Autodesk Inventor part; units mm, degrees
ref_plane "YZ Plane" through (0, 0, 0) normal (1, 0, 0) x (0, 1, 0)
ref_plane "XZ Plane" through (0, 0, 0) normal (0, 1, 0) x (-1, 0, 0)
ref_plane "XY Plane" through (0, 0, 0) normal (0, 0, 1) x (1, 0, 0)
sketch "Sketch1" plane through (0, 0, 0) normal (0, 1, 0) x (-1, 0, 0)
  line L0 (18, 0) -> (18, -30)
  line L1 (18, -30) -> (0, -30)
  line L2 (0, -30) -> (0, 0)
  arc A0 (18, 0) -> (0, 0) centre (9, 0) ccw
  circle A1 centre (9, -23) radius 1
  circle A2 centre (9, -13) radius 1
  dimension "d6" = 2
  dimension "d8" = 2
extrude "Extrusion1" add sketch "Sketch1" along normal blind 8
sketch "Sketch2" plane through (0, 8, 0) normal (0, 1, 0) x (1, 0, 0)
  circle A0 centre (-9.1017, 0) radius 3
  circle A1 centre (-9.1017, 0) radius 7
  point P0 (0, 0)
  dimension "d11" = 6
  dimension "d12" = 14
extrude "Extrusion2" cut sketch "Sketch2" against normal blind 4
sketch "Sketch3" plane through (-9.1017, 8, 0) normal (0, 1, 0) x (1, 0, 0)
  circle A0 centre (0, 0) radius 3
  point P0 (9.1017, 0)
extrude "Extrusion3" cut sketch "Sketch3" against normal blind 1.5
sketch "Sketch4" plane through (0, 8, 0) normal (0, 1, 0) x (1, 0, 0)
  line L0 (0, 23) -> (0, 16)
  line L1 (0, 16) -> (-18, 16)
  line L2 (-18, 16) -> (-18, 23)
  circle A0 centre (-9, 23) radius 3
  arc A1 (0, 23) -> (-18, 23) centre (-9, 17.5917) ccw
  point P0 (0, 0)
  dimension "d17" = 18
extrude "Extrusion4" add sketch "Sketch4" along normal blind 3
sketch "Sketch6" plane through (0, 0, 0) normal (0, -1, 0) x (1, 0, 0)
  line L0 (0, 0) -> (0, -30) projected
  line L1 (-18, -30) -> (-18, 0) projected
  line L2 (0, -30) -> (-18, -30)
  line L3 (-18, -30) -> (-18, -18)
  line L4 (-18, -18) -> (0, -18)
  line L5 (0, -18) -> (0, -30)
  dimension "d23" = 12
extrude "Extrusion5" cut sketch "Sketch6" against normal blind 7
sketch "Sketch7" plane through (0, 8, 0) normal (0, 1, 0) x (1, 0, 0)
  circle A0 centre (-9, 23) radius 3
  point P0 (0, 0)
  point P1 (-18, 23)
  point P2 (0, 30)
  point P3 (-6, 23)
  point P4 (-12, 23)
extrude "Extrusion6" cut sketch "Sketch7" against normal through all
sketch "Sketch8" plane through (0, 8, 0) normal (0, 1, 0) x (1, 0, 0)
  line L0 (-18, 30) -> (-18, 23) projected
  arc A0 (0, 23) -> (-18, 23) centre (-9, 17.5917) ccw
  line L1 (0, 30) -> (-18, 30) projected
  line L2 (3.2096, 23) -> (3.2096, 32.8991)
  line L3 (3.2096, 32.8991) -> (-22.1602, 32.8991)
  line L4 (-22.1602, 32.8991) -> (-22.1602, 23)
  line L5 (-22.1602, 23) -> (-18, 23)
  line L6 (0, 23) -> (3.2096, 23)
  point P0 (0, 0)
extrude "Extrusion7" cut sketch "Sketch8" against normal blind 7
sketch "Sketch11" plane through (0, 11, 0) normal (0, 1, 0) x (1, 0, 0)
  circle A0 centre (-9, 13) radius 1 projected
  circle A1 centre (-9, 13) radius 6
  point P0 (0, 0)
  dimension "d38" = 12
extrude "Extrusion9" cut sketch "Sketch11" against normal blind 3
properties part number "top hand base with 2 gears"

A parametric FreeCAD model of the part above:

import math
import FreeCAD as App
import Part
import Sketcher

doc = App.newDocument("Part")
body = doc.addObject("PartDesign::Body", "Body")

# Sketch on XZ plane
sketch1 = doc.addObject("Sketcher::SketchObject", "Sketch")
body.addObject(sketch1)
sketch1.AttachmentSupport = (doc.XZ_Plane, [""])
sketch1.MapMode = "FlatFace"
sketch1.addGeometry(Part.LineSegment(App.Vector(-18, -30, 0), App.Vector(-18, 0, 0)), False)
sketch1.addGeometry(Part.ArcOfCircle(Part.Circle(App.Vector(-9, 0, 0), App.Vector(0, 0, 1), 9), math.radians(0), math.radians(180)), False)
sketch1.addGeometry(Part.LineSegment(App.Vector(0, 0, 0), App.Vector(0, -30, 0)), False)
sketch1.addGeometry(Part.LineSegment(App.Vector(0, -30, 0), App.Vector(-18, -30, 0)), False)
sketch1.addGeometry(Part.Circle(App.Vector(-9, -23, 0), App.Vector(0, 0, 1), 1), False)
sketch1.addGeometry(Part.Circle(App.Vector(-9, -13, 0), App.Vector(0, 0, 1), 1), False)
sketch1.addConstraint(Sketcher.Constraint("Tangent", 0, 2, 1, 2))
sketch1.addConstraint(Sketcher.Constraint("Tangent", 1, 1, 2, 1))
sketch1.addConstraint(Sketcher.Constraint("Coincident", 2, 2, 3, 1))
sketch1.addConstraint(Sketcher.Constraint("Coincident", 3, 2, 0, 1))
sketch1.addConstraint(Sketcher.Constraint("Vertical", 0))
sketch1.addConstraint(Sketcher.Constraint("Vertical", 2))
sketch1.addConstraint(Sketcher.Constraint("Horizontal", 3))
sketch1.addConstraint(Sketcher.Constraint("Coincident", 1, 1, -1, 1))
sketch1.addConstraint(Sketcher.Constraint("Equal", 4, 5))
sketch1.addConstraint(Sketcher.Constraint("Vertical", 1, 3, 4, 3))
sketch1.addConstraint(Sketcher.Constraint("Vertical", 4, 3, 5, 3))
sketch1.addConstraint(Sketcher.Constraint("Diameter", 4, 2.0))
sketch1.addConstraint(Sketcher.Constraint("Radius", 1, 9.0))
sketch1.addConstraint(Sketcher.Constraint("DistanceY", 0, 1, 0, 2, 30.0))
sketch1.addConstraint(Sketcher.Constraint("DistanceY", 4, 3, -1, 1, 23.0))
sketch1.addConstraint(Sketcher.Constraint("DistanceY", 5, 3, -1, 1, 13.0))
pad1 = doc.addObject("PartDesign::Pad", "Pad")
body.addObject(pad1)
pad1.Profile = sketch1
pad1.Length = 8
pad1.Reversed = True

# Sketch on XZ plane
sketch2 = doc.addObject("Sketcher::SketchObject", "Sketch001")
body.addObject(sketch2)
sketch2.AttachmentSupport = (doc.XZ_Plane, [""])
sketch2.MapMode = "FlatFace"
sketch2.AttachmentOffset = App.Placement(App.Vector(0, 0, -8), App.Rotation())
sketch2.addGeometry(Part.Circle(App.Vector(-9.1, 0, 0), App.Vector(0, 0, 1), 7), False)
sketch2.addGeometry(Part.Circle(App.Vector(-9.1, 0, 0), App.Vector(0, 0, 1), 3), False)
sketch2.addConstraint(Sketcher.Constraint("Coincident", 1, 3, 0, 3))
sketch2.addConstraint(Sketcher.Constraint("PointOnObject", 0, 3, -1))
sketch2.addConstraint(Sketcher.Constraint("Diameter", 0, 14.0))
sketch2.addConstraint(Sketcher.Constraint("Diameter", 1, 6.0))
sketch2.addConstraint(Sketcher.Constraint("DistanceX", 0, 3, -1, 1, 9.1017))
pocket1 = doc.addObject("PartDesign::Pocket", "Pocket")
body.addObject(pocket1)
pocket1.Profile = sketch2
pocket1.Length = 4
pocket1.Reversed = True

# Sketch on XZ plane
sketch3 = doc.addObject("Sketcher::SketchObject", "Sketch002")
body.addObject(sketch3)
sketch3.AttachmentSupport = (doc.XZ_Plane, [""])
sketch3.MapMode = "FlatFace"
sketch3.AttachmentOffset = App.Placement(App.Vector(0, 0, -8), App.Rotation())
sketch3.addGeometry(Part.Circle(App.Vector(-9.1, 0, 0), App.Vector(0, 0, 1), 3), False)
sketch3.addConstraint(Sketcher.Constraint("PointOnObject", 0, 3, -1))
sketch3.addConstraint(Sketcher.Constraint("Diameter", 0, 6.0))
sketch3.addConstraint(Sketcher.Constraint("DistanceX", 0, 3, -1, 1, 9.1017))
pocket2 = doc.addObject("PartDesign::Pocket", "Pocket001")
body.addObject(pocket2)
pocket2.Profile = sketch3
pocket2.Length = 1.5
pocket2.Reversed = True

# Sketch on XZ plane
sketch4 = doc.addObject("Sketcher::SketchObject", "Sketch003")
body.addObject(sketch4)
sketch4.AttachmentSupport = (doc.XZ_Plane, [""])
sketch4.MapMode = "FlatFace"
sketch4.AttachmentOffset = App.Placement(App.Vector(0, 0, -8), App.Rotation())
sketch4.addGeometry(Part.LineSegment(App.Vector(0, -16, 0), App.Vector(0, -23, 0)), False)
sketch4.addGeometry(Part.ArcOfCircle(Part.Circle(App.Vector(-9, -17.6, 0), App.Vector(0, 0, 1), 10.5), math.radians(-149), math.radians(-31)), False)
sketch4.addGeometry(Part.LineSegment(App.Vector(-18, -23, 0), App.Vector(-18, -16, 0)), False)
sketch4.addGeometry(Part.LineSegment(App.Vector(-18, -16, 0), App.Vector(0, -16, 0)), False)
sketch4.addGeometry(Part.Circle(App.Vector(-9, -23, 0), App.Vector(0, 0, 1), 3), False)
sketch4.addConstraint(Sketcher.Constraint("Coincident", 0, 2, 1, 2))
sketch4.addConstraint(Sketcher.Constraint("Coincident", 1, 1, 2, 1))
sketch4.addConstraint(Sketcher.Constraint("Coincident", 2, 2, 3, 1))
sketch4.addConstraint(Sketcher.Constraint("Coincident", 3, 2, 0, 1))
sketch4.addConstraint(Sketcher.Constraint("Vertical", 0))
sketch4.addConstraint(Sketcher.Constraint("Vertical", 2))
sketch4.addConstraint(Sketcher.Constraint("Horizontal", 3))
sketch4.addConstraint(Sketcher.Constraint("PointOnObject", 0, 2, -2))
sketch4.addConstraint(Sketcher.Constraint("Horizontal", 4, 3, 0, 2))
sketch4.addConstraint(Sketcher.Constraint("Horizontal", 0, 2, 1, 1))
sketch4.addConstraint(Sketcher.Constraint("Vertical", 1, 3, 4, 3))
sketch4.addConstraint(Sketcher.Constraint("DistanceX", 3, 1, 3, 2, 18.0))
sketch4.addConstraint(Sketcher.Constraint("Diameter", 4, 6.0))
sketch4.addConstraint(Sketcher.Constraint("Radius", 1, 10.5))
sketch4.addConstraint(Sketcher.Constraint("DistanceY", 0, 2, 0, 1, 7.0))
sketch4.addConstraint(Sketcher.Constraint("DistanceY", 4, 3, -1, 1, 23.0))
pad2 = doc.addObject("PartDesign::Pad", "Pad001")
body.addObject(pad2)
pad2.Profile = sketch4
pad2.Length = 3
pad2.Reversed = True

# Sketch on XZ plane
sketch5 = doc.addObject("Sketcher::SketchObject", "Sketch004")
body.addObject(sketch5)
sketch5.AttachmentSupport = (doc.XZ_Plane, [""])
sketch5.MapMode = "FlatFace"
sketch5.addGeometry(Part.LineSegment(App.Vector(0, -30, 0), App.Vector(0, -18, 0)), False)
sketch5.addGeometry(Part.LineSegment(App.Vector(0, -18, 0), App.Vector(-18, -18, 0)), False)
sketch5.addGeometry(Part.LineSegment(App.Vector(-18, -18, 0), App.Vector(-18, -30, 0)), False)
sketch5.addGeometry(Part.LineSegment(App.Vector(-18, -30, 0), App.Vector(0, -30, 0)), False)
sketch5.addConstraint(Sketcher.Constraint("Coincident", 0, 2, 1, 1))
sketch5.addConstraint(Sketcher.Constraint("Coincident", 1, 2, 2, 1))
sketch5.addConstraint(Sketcher.Constraint("Coincident", 2, 2, 3, 1))
sketch5.addConstraint(Sketcher.Constraint("Coincident", 3, 2, 0, 1))
sketch5.addConstraint(Sketcher.Constraint("Vertical", 0))
sketch5.addConstraint(Sketcher.Constraint("Horizontal", 1))
sketch5.addConstraint(Sketcher.Constraint("Vertical", 2))
sketch5.addConstraint(Sketcher.Constraint("Horizontal", 3))
sketch5.addConstraint(Sketcher.Constraint("PointOnObject", 0, 2, -2))
sketch5.addConstraint(Sketcher.Constraint("DistanceY", 0, 1, 0, 2, 12.0))
sketch5.addConstraint(Sketcher.Constraint("DistanceX", 1, 2, 1, 1, 18.0))
sketch5.addConstraint(Sketcher.Constraint("DistanceY", 0, 2, -1, 1, 18.0))
pocket3 = doc.addObject("PartDesign::Pocket", "Pocket002")
body.addObject(pocket3)
pocket3.Profile = sketch5
pocket3.Length = 7

# Sketch on XZ plane
sketch6 = doc.addObject("Sketcher::SketchObject", "Sketch005")
body.addObject(sketch6)
sketch6.AttachmentSupport = (doc.XZ_Plane, [""])
sketch6.MapMode = "FlatFace"
sketch6.AttachmentOffset = App.Placement(App.Vector(0, 0, -8), App.Rotation())
sketch6.addGeometry(Part.Circle(App.Vector(-9, -23, 0), App.Vector(0, 0, 1), 3), False)
sketch6.addConstraint(Sketcher.Constraint("Diameter", 0, 6.0))
sketch6.addConstraint(Sketcher.Constraint("DistanceX", 0, 3, -1, 1, 9.0))
sketch6.addConstraint(Sketcher.Constraint("DistanceY", 0, 3, -1, 1, 23.0))
pocket4 = doc.addObject("PartDesign::Pocket", "Pocket003")
body.addObject(pocket4)
pocket4.Profile = sketch6
pocket4.Type = "ThroughAll"
pocket4.Reversed = True

# Sketch on XZ plane
sketch7 = doc.addObject("Sketcher::SketchObject", "Sketch006")
body.addObject(sketch7)
sketch7.AttachmentSupport = (doc.XZ_Plane, [""])
sketch7.MapMode = "FlatFace"
sketch7.AttachmentOffset = App.Placement(App.Vector(0, 0, -8), App.Rotation())
sketch7.addGeometry(Part.ArcOfCircle(Part.Circle(App.Vector(-9, -17.6, 0), App.Vector(0, 0, 1), 10.5), math.radians(-149), math.radians(-31)), False)
sketch7.addGeometry(Part.LineSegment(App.Vector(0, -23, 0), App.Vector(3.2, -23, 0)), False)
sketch7.addGeometry(Part.LineSegment(App.Vector(3.2, -23, 0), App.Vector(3.2, -32.9, 0)), False)
sketch7.addGeometry(Part.LineSegment(App.Vector(3.2, -32.9, 0), App.Vector(-22.2, -32.9, 0)), False)
sketch7.addGeometry(Part.LineSegment(App.Vector(-22.2, -32.9, 0), App.Vector(-22.2, -23, 0)), False)
sketch7.addGeometry(Part.LineSegment(App.Vector(-22.2, -23, 0), App.Vector(-18, -23, 0)), False)
sketch7.addConstraint(Sketcher.Constraint("Coincident", 0, 2, 1, 1))
sketch7.addConstraint(Sketcher.Constraint("Coincident", 1, 2, 2, 1))
sketch7.addConstraint(Sketcher.Constraint("Coincident", 2, 2, 3, 1))
sketch7.addConstraint(Sketcher.Constraint("Coincident", 3, 2, 4, 1))
sketch7.addConstraint(Sketcher.Constraint("Coincident", 4, 2, 5, 1))
sketch7.addConstraint(Sketcher.Constraint("Coincident", 5, 2, 0, 1))
sketch7.addConstraint(Sketcher.Constraint("Horizontal", 1))
sketch7.addConstraint(Sketcher.Constraint("Vertical", 2))
sketch7.addConstraint(Sketcher.Constraint("Horizontal", 3))
sketch7.addConstraint(Sketcher.Constraint("Vertical", 4))
sketch7.addConstraint(Sketcher.Constraint("Horizontal", 5))
sketch7.addConstraint(Sketcher.Constraint("PointOnObject", 0, 2, -2))
sketch7.addConstraint(Sketcher.Constraint("Horizontal", 1, 2, 4, 2))
sketch7.addConstraint(Sketcher.Constraint("Radius", 0, 10.5))
sketch7.addConstraint(Sketcher.Constraint("DistanceX", 0, 3, -1, 1, 9.0))
sketch7.addConstraint(Sketcher.Constraint("DistanceY", 0, 2, -1, 1, 23.0))
sketch7.addConstraint(Sketcher.Constraint("DistanceY", 2, 2, 2, 1, 9.899))
sketch7.addConstraint(Sketcher.Constraint("DistanceX", 1, 1, 1, 2, 3.2096))
sketch7.addConstraint(Sketcher.Constraint("DistanceX", 3, 2, 3, 1, 25.3698))
pocket5 = doc.addObject("PartDesign::Pocket", "Pocket004")
body.addObject(pocket5)
pocket5.Profile = sketch7
pocket5.Length = 7
pocket5.Reversed = True

# Sketch on XZ plane
sketch8 = doc.addObject("Sketcher::SketchObject", "Sketch007")
body.addObject(sketch8)
sketch8.AttachmentSupport = (doc.XZ_Plane, [""])
sketch8.MapMode = "FlatFace"
sketch8.AttachmentOffset = App.Placement(App.Vector(0, 0, -11), App.Rotation())
sketch8.addGeometry(Part.Circle(App.Vector(-9, -13, 0), App.Vector(0, 0, 1), 6), False)
sketch8.addGeometry(Part.Circle(App.Vector(-9, -13, 0), App.Vector(0, 0, 1), 1), False)
sketch8.addConstraint(Sketcher.Constraint("Coincident", 1, 3, 0, 3))
sketch8.addConstraint(Sketcher.Constraint("Diameter", 0, 12.0))
sketch8.addConstraint(Sketcher.Constraint("Diameter", 1, 2.0))
sketch8.addConstraint(Sketcher.Constraint("DistanceX", 0, 3, -1, 1, 9.0))
sketch8.addConstraint(Sketcher.Constraint("DistanceY", 0, 3, -1, 1, 13.0))
pocket6 = doc.addObject("PartDesign::Pocket", "Pocket005")
body.addObject(pocket6)
pocket6.Profile = sketch8
pocket6.Length = 3
pocket6.Reversed = True

doc.recompute()
